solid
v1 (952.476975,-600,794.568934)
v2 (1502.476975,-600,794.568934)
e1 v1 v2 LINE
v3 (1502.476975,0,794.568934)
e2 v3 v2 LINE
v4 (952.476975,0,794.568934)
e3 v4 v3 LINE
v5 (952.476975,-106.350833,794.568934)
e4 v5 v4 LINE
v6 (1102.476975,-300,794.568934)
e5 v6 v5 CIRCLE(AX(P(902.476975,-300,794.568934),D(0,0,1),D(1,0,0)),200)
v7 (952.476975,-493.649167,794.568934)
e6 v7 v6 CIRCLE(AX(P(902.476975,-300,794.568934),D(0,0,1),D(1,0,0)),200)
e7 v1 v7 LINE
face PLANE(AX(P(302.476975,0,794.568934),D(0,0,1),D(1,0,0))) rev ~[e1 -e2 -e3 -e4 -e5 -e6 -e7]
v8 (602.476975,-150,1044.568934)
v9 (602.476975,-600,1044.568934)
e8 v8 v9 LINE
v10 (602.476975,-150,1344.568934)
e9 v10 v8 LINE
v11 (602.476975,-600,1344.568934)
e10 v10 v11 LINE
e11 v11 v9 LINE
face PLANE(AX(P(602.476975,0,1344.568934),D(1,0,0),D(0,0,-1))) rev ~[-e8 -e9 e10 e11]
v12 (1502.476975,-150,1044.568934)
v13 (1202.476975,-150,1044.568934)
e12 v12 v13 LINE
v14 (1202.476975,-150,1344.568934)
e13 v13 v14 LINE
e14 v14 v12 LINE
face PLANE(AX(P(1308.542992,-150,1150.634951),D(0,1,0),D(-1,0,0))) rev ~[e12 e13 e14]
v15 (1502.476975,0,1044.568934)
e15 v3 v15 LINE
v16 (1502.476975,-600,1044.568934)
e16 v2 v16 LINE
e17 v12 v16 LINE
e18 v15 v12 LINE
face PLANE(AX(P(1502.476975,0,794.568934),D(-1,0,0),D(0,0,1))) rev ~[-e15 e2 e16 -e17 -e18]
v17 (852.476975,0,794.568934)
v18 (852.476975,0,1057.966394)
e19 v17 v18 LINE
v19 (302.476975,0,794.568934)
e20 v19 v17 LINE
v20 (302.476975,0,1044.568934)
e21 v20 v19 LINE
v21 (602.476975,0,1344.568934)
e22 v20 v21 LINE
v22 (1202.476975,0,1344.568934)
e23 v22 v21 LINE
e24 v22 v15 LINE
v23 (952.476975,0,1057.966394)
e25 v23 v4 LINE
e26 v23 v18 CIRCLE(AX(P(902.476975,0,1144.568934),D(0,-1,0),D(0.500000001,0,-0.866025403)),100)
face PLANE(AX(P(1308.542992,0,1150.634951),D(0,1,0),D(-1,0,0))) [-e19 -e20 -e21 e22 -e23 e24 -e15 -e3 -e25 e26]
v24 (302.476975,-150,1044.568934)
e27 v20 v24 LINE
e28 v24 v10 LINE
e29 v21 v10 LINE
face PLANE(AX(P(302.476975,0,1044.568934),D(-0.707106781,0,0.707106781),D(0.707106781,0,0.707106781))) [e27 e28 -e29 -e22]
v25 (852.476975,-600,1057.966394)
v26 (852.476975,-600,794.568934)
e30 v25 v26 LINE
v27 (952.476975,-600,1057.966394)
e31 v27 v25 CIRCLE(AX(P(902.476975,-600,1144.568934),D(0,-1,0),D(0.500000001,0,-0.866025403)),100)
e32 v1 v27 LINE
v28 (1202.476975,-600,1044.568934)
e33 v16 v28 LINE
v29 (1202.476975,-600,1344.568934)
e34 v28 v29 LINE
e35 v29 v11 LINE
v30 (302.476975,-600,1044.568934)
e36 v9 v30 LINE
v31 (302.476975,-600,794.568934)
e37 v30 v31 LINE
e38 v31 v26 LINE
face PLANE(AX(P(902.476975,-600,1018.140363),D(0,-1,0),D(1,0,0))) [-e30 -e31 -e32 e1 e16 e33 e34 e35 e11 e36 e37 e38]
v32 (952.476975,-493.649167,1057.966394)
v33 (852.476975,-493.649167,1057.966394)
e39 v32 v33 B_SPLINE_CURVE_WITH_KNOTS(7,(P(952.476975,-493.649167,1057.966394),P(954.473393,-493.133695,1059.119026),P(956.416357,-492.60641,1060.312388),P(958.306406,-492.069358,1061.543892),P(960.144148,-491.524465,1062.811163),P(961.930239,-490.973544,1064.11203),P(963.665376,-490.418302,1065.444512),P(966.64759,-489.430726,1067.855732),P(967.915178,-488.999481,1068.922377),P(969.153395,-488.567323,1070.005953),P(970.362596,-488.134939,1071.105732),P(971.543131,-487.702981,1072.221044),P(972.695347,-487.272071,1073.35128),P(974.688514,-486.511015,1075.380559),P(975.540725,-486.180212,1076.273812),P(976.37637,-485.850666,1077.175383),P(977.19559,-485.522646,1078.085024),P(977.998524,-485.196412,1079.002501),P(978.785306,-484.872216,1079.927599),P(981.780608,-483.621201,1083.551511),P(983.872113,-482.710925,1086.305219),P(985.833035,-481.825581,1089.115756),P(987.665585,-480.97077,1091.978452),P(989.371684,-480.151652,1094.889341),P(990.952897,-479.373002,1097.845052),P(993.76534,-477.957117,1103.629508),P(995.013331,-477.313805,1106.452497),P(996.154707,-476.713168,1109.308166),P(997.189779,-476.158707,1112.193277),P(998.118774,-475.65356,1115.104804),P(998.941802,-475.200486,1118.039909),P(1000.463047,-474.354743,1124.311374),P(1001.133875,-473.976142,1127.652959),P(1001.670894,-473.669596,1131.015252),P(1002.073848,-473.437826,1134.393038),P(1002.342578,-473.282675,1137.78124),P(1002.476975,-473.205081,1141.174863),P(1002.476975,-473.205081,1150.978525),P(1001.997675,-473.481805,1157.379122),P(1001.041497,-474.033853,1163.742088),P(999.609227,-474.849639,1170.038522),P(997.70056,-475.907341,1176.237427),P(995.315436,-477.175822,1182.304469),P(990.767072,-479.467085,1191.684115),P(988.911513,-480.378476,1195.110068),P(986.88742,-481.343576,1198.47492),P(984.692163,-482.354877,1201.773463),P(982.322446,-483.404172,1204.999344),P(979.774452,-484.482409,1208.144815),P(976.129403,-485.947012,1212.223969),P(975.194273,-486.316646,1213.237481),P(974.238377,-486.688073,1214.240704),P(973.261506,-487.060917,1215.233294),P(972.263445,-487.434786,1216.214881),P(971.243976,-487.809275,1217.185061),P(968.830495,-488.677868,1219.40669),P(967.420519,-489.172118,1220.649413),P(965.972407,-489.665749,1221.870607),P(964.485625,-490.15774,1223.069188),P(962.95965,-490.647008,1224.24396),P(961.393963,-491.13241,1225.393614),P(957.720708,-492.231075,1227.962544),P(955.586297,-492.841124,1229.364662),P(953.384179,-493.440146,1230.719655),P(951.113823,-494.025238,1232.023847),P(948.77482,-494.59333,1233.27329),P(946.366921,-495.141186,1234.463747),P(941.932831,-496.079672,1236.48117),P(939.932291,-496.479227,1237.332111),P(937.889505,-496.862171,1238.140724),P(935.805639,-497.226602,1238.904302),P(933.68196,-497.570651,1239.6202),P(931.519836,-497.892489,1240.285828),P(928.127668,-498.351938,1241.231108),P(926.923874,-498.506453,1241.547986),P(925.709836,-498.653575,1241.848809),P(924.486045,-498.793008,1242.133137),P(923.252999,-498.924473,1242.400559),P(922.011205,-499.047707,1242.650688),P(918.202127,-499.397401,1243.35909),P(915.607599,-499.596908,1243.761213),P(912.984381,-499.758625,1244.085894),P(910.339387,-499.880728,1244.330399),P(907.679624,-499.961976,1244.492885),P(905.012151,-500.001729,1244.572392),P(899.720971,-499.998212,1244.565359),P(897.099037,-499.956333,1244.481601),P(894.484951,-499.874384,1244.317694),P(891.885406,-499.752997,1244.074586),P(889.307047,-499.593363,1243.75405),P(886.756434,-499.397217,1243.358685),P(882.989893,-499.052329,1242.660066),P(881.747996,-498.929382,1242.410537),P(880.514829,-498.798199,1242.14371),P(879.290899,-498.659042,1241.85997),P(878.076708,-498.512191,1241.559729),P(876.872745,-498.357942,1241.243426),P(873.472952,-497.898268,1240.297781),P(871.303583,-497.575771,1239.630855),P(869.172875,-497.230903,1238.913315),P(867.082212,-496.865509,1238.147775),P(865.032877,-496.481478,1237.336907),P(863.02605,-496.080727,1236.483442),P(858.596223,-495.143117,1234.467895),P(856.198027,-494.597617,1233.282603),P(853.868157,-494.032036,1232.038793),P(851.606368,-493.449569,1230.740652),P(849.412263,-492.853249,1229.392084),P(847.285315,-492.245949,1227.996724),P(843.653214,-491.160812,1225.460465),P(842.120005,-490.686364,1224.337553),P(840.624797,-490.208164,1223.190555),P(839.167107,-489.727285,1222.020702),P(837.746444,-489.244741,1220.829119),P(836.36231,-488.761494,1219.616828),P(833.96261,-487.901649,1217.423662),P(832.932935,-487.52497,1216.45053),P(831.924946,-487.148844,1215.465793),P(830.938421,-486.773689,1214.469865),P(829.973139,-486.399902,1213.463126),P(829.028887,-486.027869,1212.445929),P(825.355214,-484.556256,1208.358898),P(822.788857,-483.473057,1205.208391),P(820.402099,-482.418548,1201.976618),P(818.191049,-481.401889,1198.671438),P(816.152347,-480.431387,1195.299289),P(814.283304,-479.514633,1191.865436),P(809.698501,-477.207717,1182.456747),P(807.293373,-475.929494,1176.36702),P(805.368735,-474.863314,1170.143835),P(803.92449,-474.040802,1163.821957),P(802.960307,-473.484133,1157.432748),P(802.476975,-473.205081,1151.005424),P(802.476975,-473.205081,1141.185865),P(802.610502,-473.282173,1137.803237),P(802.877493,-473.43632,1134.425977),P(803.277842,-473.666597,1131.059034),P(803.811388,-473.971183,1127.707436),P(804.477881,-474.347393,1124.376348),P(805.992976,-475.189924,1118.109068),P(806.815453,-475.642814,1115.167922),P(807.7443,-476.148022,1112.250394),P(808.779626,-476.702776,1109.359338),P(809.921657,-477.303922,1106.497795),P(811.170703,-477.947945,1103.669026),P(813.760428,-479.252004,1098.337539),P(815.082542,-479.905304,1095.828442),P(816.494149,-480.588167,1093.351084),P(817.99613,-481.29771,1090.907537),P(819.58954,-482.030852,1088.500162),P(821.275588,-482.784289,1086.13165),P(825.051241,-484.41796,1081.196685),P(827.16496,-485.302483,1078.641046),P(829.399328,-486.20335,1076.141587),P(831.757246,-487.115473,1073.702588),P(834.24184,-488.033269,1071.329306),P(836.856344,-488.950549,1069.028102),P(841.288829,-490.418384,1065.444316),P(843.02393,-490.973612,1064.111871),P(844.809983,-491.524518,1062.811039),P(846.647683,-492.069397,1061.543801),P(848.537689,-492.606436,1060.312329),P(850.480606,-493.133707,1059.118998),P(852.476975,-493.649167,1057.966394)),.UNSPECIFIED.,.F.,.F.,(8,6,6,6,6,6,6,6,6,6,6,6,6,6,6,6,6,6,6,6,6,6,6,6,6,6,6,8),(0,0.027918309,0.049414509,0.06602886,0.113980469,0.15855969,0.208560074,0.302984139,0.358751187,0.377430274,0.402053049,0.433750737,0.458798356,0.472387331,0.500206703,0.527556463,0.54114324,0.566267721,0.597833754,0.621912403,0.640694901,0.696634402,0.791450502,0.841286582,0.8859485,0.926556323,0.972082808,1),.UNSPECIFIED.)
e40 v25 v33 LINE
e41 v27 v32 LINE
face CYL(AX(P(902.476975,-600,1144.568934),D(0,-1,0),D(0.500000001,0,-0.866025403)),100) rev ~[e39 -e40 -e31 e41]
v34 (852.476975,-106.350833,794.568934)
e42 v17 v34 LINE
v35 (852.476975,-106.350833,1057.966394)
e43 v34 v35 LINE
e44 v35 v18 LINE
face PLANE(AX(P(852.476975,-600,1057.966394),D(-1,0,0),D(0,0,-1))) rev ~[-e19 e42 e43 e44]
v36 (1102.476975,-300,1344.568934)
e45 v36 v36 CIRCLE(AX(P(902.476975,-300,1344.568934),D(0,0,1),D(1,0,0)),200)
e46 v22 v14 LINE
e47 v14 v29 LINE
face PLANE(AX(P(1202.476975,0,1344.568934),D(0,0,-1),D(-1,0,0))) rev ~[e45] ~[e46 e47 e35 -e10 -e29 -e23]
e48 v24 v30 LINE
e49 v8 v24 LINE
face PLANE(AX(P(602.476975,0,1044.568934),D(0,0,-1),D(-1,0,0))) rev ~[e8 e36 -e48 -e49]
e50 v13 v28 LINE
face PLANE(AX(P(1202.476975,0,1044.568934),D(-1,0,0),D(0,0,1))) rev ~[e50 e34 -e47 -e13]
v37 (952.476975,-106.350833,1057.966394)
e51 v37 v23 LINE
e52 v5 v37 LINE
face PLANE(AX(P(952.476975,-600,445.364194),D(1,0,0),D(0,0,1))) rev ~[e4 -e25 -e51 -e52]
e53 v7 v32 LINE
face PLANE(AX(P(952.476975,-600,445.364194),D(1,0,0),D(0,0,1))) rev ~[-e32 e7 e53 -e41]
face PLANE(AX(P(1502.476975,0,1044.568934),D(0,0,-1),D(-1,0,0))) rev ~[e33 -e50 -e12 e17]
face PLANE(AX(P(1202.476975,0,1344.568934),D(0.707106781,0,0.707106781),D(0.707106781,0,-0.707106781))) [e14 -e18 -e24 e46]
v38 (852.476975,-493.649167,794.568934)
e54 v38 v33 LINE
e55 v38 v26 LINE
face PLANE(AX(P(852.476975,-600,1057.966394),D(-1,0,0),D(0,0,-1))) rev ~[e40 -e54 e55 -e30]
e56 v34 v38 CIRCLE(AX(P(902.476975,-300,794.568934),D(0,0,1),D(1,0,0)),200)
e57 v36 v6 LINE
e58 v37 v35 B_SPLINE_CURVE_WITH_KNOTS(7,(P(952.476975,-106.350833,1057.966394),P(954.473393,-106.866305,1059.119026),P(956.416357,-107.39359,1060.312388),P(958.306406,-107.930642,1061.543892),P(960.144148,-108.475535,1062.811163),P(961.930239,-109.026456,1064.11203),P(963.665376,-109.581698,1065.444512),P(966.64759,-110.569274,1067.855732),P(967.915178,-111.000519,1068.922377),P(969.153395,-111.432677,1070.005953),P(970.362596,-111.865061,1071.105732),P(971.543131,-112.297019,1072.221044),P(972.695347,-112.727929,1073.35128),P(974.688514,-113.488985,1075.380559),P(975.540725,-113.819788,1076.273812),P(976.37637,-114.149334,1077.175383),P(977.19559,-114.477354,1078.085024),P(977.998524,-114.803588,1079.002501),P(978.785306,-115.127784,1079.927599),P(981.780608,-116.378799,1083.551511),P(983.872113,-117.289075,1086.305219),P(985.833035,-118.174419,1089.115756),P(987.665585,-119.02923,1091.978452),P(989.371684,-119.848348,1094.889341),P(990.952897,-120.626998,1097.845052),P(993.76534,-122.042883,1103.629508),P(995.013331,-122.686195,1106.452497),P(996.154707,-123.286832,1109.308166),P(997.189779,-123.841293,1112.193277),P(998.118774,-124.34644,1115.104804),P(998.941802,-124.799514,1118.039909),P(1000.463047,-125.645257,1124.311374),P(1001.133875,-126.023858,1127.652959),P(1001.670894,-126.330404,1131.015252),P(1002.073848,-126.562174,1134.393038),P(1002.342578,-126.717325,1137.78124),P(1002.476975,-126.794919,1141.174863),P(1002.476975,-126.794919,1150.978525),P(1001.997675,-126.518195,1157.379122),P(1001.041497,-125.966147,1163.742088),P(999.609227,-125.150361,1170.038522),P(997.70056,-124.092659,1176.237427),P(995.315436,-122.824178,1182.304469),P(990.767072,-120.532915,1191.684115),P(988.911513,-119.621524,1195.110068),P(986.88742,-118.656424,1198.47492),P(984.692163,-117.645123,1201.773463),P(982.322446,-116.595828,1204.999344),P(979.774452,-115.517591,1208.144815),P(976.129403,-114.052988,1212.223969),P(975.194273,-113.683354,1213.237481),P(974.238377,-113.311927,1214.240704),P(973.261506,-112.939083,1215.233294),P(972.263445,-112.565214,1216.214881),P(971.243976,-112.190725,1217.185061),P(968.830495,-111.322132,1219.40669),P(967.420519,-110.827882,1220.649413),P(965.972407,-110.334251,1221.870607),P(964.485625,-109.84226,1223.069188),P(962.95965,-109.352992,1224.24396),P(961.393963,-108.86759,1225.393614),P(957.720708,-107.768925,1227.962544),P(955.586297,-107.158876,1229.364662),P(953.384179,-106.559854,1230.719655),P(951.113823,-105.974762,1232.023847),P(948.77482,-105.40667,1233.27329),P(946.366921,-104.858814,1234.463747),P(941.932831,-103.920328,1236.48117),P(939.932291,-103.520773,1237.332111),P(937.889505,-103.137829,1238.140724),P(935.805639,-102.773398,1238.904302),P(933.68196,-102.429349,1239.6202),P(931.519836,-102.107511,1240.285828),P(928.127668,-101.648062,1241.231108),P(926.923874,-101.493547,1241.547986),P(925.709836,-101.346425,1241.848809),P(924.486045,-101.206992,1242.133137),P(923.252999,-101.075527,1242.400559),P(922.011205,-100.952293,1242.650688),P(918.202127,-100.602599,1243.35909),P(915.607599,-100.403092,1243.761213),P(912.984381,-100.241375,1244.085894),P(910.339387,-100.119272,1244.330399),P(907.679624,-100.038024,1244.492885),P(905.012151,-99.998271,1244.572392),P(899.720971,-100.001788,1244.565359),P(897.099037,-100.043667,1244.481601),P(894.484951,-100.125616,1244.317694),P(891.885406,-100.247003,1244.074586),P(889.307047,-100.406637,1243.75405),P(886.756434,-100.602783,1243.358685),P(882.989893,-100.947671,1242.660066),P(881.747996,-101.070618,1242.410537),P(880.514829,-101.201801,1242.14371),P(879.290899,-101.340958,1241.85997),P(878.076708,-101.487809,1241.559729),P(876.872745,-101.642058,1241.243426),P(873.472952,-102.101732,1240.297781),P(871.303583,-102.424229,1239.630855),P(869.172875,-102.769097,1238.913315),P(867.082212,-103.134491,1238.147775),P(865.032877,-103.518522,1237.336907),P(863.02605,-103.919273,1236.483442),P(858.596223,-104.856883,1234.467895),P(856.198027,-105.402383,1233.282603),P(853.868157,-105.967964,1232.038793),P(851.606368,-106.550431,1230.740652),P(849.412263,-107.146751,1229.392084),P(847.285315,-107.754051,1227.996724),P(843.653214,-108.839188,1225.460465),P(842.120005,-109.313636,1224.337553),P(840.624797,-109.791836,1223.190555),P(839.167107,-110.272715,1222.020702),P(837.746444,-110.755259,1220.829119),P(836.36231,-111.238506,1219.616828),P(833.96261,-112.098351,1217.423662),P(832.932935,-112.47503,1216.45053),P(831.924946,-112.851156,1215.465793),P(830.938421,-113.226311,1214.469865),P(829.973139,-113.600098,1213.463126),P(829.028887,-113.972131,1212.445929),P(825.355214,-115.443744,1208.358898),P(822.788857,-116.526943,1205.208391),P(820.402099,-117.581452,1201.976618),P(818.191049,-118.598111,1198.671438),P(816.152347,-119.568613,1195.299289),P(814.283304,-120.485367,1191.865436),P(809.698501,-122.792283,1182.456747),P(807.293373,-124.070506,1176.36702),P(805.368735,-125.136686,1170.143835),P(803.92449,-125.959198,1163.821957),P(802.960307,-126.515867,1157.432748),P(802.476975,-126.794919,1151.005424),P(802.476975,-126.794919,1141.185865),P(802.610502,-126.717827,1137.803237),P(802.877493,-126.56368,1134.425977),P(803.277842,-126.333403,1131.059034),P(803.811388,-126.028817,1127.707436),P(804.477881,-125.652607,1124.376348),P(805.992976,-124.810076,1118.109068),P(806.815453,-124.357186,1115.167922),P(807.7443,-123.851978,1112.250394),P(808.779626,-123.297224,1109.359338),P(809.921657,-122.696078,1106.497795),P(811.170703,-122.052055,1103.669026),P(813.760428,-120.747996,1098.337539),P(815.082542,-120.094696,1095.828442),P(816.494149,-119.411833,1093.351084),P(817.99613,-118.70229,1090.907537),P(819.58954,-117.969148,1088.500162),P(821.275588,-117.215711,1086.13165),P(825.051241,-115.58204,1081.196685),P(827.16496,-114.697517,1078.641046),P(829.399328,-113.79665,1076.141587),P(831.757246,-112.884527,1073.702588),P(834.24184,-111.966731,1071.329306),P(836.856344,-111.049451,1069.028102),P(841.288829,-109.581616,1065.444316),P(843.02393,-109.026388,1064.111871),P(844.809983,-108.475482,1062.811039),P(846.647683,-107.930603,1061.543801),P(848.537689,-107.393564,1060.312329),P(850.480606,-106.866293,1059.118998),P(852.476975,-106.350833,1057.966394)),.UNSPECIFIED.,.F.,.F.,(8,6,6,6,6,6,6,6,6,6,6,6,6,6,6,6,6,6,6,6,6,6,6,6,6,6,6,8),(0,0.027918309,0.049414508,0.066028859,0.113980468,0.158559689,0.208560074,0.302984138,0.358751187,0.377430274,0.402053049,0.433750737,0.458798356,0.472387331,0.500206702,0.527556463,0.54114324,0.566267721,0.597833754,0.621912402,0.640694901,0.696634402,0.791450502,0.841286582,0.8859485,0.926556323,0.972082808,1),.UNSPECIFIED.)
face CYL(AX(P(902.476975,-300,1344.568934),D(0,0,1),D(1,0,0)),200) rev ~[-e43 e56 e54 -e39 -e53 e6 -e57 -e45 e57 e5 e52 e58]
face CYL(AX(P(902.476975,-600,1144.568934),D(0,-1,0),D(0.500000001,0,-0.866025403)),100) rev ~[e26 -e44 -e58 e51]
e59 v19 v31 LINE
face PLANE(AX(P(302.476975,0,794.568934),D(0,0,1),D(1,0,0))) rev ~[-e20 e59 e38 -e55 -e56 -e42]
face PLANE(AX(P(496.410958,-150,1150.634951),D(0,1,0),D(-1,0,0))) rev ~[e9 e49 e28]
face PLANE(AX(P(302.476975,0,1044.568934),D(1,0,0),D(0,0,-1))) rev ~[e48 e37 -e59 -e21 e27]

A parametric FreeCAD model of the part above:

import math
import FreeCAD as App
import Part
import Sketcher

doc = App.newDocument("Part")
body = doc.addObject("PartDesign::Body", "Body")

# Sketch on XZ plane
sketch1 = body.newObject("Sketcher::SketchObject", "Sketch")
sketch1.AttachmentSupport = (doc.getObject("XZ_Plane"), [""])
sketch1.MapMode = "FlatFace"
sketch1.addGeometry(Part.LineSegment(App.Vector(302.476975, 1044.568934, 0), App.Vector(302.476975, 794.568934, 0)), False)
sketch1.addGeometry(Part.LineSegment(App.Vector(302.476975, 794.568934, 0), App.Vector(1502.476975, 794.568934, 0)), False)
sketch1.addGeometry(Part.LineSegment(App.Vector(1502.476975, 794.568934, 0), App.Vector(1502.476975, 1044.568934, 0)), False)
sketch1.addGeometry(Part.LineSegment(App.Vector(1502.476975, 1044.568934, 0), App.Vector(1202.476975, 1044.568934, 0)), False)
sketch1.addGeometry(Part.LineSegment(App.Vector(1202.476975, 1044.568934, 0), App.Vector(1202.476975, 1344.568934, 0)), False)
sketch1.addGeometry(Part.LineSegment(App.Vector(1202.476975, 1344.568934, 0), App.Vector(602.476975, 1344.568934, 0)), False)
sketch1.addGeometry(Part.LineSegment(App.Vector(602.476975, 1344.568934, 0), App.Vector(602.476975, 1044.568934, 0)), False)
sketch1.addGeometry(Part.LineSegment(App.Vector(602.476975, 1044.568934, 0), App.Vector(302.476975, 1044.568934, 0)), False)
sketch1.addConstraint(Sketcher.Constraint("Coincident", 0, 2, 1, 1))
sketch1.addConstraint(Sketcher.Constraint("Coincident", 1, 2, 2, 1))
sketch1.addConstraint(Sketcher.Constraint("Coincident", 2, 2, 3, 1))
sketch1.addConstraint(Sketcher.Constraint("Coincident", 3, 2, 4, 1))
sketch1.addConstraint(Sketcher.Constraint("Coincident", 4, 2, 5, 1))
sketch1.addConstraint(Sketcher.Constraint("Coincident", 5, 2, 6, 1))
sketch1.addConstraint(Sketcher.Constraint("Coincident", 6, 2, 7, 1))
sketch1.addConstraint(Sketcher.Constraint("Coincident", 7, 2, 0, 1))
sketch1.addConstraint(Sketcher.Constraint("Vertical", 0))
sketch1.addConstraint(Sketcher.Constraint("Horizontal", 1))
sketch1.addConstraint(Sketcher.Constraint("Vertical", 2))
sketch1.addConstraint(Sketcher.Constraint("Horizontal", 3))
sketch1.addConstraint(Sketcher.Constraint("Vertical", 4))
sketch1.addConstraint(Sketcher.Constraint("Horizontal", 5))
sketch1.addConstraint(Sketcher.Constraint("Vertical", 6))
sketch1.addConstraint(Sketcher.Constraint("Horizontal", 7))
sketch1.addConstraint(Sketcher.Constraint("Horizontal", 3, 2, 6, 2))
sketch1.addConstraint(Sketcher.Constraint("Equal", 3, 7))
sketch1.addConstraint(Sketcher.Constraint("Equal", 7, 4))
sketch1.addConstraint(Sketcher.Constraint("DistanceX", 1, 1, 1, 2, 1200.0))
sketch1.addConstraint(Sketcher.Constraint("DistanceX", 3, 2, 3, 1, 300.0))
sketch1.addConstraint(Sketcher.Constraint("DistanceY", 0, 2, 0, 1, 250.0))
sketch1.addConstraint(Sketcher.Constraint("DistanceX", -1, 1, 0, 2, 302.476975))
sketch1.addConstraint(Sketcher.Constraint("DistanceY", -1, 1, 0, 2, 794.568934))
pad1 = body.newObject("PartDesign::Pad", "Pad")
pad1.Profile = sketch1
pad1.Length = 600

# Sketch on XZ plane
sketch2 = body.newObject("Sketcher::SketchObject", "Sketch001")
sketch2.AttachmentSupport = (doc.getObject("XZ_Plane"), [""])
sketch2.MapMode = "FlatFace"
sketch2.addGeometry(Part.LineSegment(App.Vector(1202.476975, 1344.568934, 0), App.Vector(1502.476975, 1044.568934, 0)), False)
sketch2.addGeometry(Part.LineSegment(App.Vector(1502.476975, 1044.568934, 0), App.Vector(1202.476975, 1044.568934, 0)), False)
sketch2.addGeometry(Part.LineSegment(App.Vector(1202.476975, 1044.568934, 0), App.Vector(1202.476975, 1344.568934, 0)), False)
sketch2.addGeometry(Part.LineSegment(App.Vector(302.476975, 1044.568934, 0), App.Vector(602.476975, 1344.568934, 0)), False)
sketch2.addGeometry(Part.LineSegment(App.Vector(602.476975, 1344.568934, 0), App.Vector(602.476975, 1044.568934, 0)), False)
sketch2.addGeometry(Part.LineSegment(App.Vector(602.476975, 1044.568934, 0), App.Vector(302.476975, 1044.568934, 0)), False)
sketch2.addConstraint(Sketcher.Constraint("Coincident", 0, 2, 1, 1))
sketch2.addConstraint(Sketcher.Constraint("Coincident", 1, 2, 2, 1))
sketch2.addConstraint(Sketcher.Constraint("Coincident", 2, 2, 0, 1))
sketch2.addConstraint(Sketcher.Constraint("Coincident", 3, 2, 4, 1))
sketch2.addConstraint(Sketcher.Constraint("Coincident", 4, 2, 5, 1))
sketch2.addConstraint(Sketcher.Constraint("Coincident", 5, 2, 3, 1))
sketch2.addConstraint(Sketcher.Constraint("Horizontal", 1))
sketch2.addConstraint(Sketcher.Constraint("Vertical", 2))
sketch2.addConstraint(Sketcher.Constraint("Vertical", 4))
sketch2.addConstraint(Sketcher.Constraint("Horizontal", 5))
sketch2.addConstraint(Sketcher.Constraint("Perpendicular", 0, 3))
sketch2.addConstraint(Sketcher.Constraint("Horizontal", 2, 2, 3, 2))
sketch2.addConstraint(Sketcher.Constraint("Horizontal", 1, 2, 4, 2))
sketch2.addConstraint(Sketcher.Constraint("Equal", 1, 5))
sketch2.addConstraint(Sketcher.Constraint("DistanceX", 1, 2, 1, 1, 300.0))
sketch2.addConstraint(Sketcher.Constraint("DistanceX", 3, 2, 2, 2, 600.0))
sketch2.addConstraint(Sketcher.Constraint("DistanceX", -1, 1, 0, 2, 1502.476975))
sketch2.addConstraint(Sketcher.Constraint("DistanceY", -1, 1, 0, 2, 1044.568934))
pad2 = body.newObject("PartDesign::Pad", "Pad001")
pad2.Profile = sketch2
pad2.Length = 150

# Sketch on XZ plane
sketch3 = body.newObject("Sketcher::SketchObject", "Sketch002")
sketch3.AttachmentSupport = (doc.getObject("XZ_Plane"), [""])
sketch3.MapMode = "FlatFace"
sketch3.AttachmentOffset = App.Placement(App.Vector(0, 0, 600), App.Rotation())
sketch3.addGeometry(Part.LineSegment(App.Vector(952.476975, 445.364194, 0), App.Vector(952.476975, 1057.966394, 0)), False)
sketch3.addGeometry(Part.ArcOfCircle(Part.Circle(App.Vector(902.476975, 1144.568934, 0), App.Vector(0, 0, 1), 100), math.radians(-60), math.radians(240)), False)
sketch3.addGeometry(Part.LineSegment(App.Vector(852.476975, 1057.966394, 0), App.Vector(852.476975, 445.364194, 0)), False)
sketch3.addGeometry(Part.LineSegment(App.Vector(852.476975, 445.364194, 0), App.Vector(952.476975, 445.364194, 0)), False)
sketch3.addConstraint(Sketcher.Constraint("Coincident", 0, 2, 1, 1))
sketch3.addConstraint(Sketcher.Constraint("Coincident", 1, 2, 2, 1))
sketch3.addConstraint(Sketcher.Constraint("Coincident", 2, 2, 3, 1))
sketch3.addConstraint(Sketcher.Constraint("Coincident", 3, 2, 0, 1))
sketch3.addConstraint(Sketcher.Constraint("Vertical", 0))
sketch3.addConstraint(Sketcher.Constraint("Vertical", 2))
sketch3.addConstraint(Sketcher.Constraint("Horizontal", 3))
sketch3.addConstraint(Sketcher.Constraint("Horizontal", 0, 2, 1, 2))
sketch3.addConstraint(Sketcher.Constraint("Radius", 1, 100.0))
sketch3.addConstraint(Sketcher.Constraint("DistanceX", 3, 1, 3, 2, 100.0))
sketch3.addConstraint(Sketcher.Constraint("DistanceY", 0, 1, 0, 2, 612.6022))
sketch3.addConstraint(Sketcher.Constraint("DistanceX", -1, 1, 1, 3, 902.476975))
sketch3.addConstraint(Sketcher.Constraint("DistanceY", -1, 1, 1, 3, 1144.568934))
pocket1 = body.newObject("PartDesign::Pocket", "Pocket")
pocket1.Profile = sketch3
pocket1.Type = "ThroughAll"

# Sketch on XY plane
sketch4 = body.newObject("Sketcher::SketchObject", "Sketch003")
sketch4.AttachmentSupport = (doc.getObject("XY_Plane"), [""])
sketch4.MapMode = "FlatFace"
sketch4.AttachmentOffset = App.Placement(App.Vector(0, 0, 1344.568934), App.Rotation())
sketch4.addGeometry(Part.Circle(App.Vector(902.476975, -300, 0), App.Vector(0, 0, 1), 200), False)
sketch4.addConstraint(Sketcher.Constraint("Diameter", 0, 400.0))
sketch4.addConstraint(Sketcher.Constraint("DistanceY", 0, 3, -1, 1, 300.0))
sketch4.addConstraint(Sketcher.Constraint("DistanceX", -1, 1, 0, 3, 902.476975))
pocket2 = body.newObject("PartDesign::Pocket", "Pocket001")
pocket2.Profile = sketch4
pocket2.Type = "ThroughAll"

doc.recompute()
